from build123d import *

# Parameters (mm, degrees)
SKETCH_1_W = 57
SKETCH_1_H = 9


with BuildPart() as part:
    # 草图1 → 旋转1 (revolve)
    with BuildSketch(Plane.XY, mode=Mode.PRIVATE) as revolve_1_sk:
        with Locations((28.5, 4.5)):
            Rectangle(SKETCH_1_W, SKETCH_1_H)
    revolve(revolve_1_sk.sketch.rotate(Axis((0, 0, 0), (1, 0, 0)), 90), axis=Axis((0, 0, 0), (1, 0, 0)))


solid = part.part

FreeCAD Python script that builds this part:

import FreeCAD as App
import Part
import Sketcher

V = App.Vector


def add_polygon(sketch, points):
    """Adds a closed chain of lines whose ends are joined by coincident constraints."""
    first, n = sketch.GeometryCount, len(points)
    for a, b in zip(points, points[1:] + points[:1]):
        sketch.addGeometry(Part.LineSegment(App.Vector(*a, 0), App.Vector(*b, 0)), False)
    for i in range(n):
        sketch.addConstraint(Sketcher.Constraint("Coincident", first + i, 2, first + (i + 1) % n, 1))

doc = App.newDocument("Part")
body = doc.addObject("PartDesign::Body", "Body")

# Sketch on XY plane
sketch1 = doc.addObject("Sketcher::SketchObject", "Sketch")
body.addObject(sketch1)
sketch1.AttachmentSupport = (doc.XY_Plane, [""])
sketch1.MapMode = "FlatFace"
add_polygon(sketch1, [(0, 9), (0, 0), (57, 0), (57, 9)])  # lines 0-3
sketch1.addConstraint(Sketcher.Constraint("Vertical", 0))
sketch1.addConstraint(Sketcher.Constraint("Horizontal", 1))
sketch1.addConstraint(Sketcher.Constraint("Vertical", 2))
sketch1.addConstraint(Sketcher.Constraint("Horizontal", 3))
sketch1.addConstraint(Sketcher.Constraint("Coincident", 0, 2, -1, 1))
sketch1.addConstraint(Sketcher.Constraint("DistanceX", 1, 1, 1, 2, 57.0))
sketch1.addConstraint(Sketcher.Constraint("DistanceY", 0, 2, 0, 1, 9.0))
revolution = doc.addObject("PartDesign::Revolution", "Revolution")
body.addObject(revolution)
revolution.Profile = sketch1
revolution.ReferenceAxis = (sketch1, ["H_Axis"])
revolution.Angle = 360

doc.recompute()
